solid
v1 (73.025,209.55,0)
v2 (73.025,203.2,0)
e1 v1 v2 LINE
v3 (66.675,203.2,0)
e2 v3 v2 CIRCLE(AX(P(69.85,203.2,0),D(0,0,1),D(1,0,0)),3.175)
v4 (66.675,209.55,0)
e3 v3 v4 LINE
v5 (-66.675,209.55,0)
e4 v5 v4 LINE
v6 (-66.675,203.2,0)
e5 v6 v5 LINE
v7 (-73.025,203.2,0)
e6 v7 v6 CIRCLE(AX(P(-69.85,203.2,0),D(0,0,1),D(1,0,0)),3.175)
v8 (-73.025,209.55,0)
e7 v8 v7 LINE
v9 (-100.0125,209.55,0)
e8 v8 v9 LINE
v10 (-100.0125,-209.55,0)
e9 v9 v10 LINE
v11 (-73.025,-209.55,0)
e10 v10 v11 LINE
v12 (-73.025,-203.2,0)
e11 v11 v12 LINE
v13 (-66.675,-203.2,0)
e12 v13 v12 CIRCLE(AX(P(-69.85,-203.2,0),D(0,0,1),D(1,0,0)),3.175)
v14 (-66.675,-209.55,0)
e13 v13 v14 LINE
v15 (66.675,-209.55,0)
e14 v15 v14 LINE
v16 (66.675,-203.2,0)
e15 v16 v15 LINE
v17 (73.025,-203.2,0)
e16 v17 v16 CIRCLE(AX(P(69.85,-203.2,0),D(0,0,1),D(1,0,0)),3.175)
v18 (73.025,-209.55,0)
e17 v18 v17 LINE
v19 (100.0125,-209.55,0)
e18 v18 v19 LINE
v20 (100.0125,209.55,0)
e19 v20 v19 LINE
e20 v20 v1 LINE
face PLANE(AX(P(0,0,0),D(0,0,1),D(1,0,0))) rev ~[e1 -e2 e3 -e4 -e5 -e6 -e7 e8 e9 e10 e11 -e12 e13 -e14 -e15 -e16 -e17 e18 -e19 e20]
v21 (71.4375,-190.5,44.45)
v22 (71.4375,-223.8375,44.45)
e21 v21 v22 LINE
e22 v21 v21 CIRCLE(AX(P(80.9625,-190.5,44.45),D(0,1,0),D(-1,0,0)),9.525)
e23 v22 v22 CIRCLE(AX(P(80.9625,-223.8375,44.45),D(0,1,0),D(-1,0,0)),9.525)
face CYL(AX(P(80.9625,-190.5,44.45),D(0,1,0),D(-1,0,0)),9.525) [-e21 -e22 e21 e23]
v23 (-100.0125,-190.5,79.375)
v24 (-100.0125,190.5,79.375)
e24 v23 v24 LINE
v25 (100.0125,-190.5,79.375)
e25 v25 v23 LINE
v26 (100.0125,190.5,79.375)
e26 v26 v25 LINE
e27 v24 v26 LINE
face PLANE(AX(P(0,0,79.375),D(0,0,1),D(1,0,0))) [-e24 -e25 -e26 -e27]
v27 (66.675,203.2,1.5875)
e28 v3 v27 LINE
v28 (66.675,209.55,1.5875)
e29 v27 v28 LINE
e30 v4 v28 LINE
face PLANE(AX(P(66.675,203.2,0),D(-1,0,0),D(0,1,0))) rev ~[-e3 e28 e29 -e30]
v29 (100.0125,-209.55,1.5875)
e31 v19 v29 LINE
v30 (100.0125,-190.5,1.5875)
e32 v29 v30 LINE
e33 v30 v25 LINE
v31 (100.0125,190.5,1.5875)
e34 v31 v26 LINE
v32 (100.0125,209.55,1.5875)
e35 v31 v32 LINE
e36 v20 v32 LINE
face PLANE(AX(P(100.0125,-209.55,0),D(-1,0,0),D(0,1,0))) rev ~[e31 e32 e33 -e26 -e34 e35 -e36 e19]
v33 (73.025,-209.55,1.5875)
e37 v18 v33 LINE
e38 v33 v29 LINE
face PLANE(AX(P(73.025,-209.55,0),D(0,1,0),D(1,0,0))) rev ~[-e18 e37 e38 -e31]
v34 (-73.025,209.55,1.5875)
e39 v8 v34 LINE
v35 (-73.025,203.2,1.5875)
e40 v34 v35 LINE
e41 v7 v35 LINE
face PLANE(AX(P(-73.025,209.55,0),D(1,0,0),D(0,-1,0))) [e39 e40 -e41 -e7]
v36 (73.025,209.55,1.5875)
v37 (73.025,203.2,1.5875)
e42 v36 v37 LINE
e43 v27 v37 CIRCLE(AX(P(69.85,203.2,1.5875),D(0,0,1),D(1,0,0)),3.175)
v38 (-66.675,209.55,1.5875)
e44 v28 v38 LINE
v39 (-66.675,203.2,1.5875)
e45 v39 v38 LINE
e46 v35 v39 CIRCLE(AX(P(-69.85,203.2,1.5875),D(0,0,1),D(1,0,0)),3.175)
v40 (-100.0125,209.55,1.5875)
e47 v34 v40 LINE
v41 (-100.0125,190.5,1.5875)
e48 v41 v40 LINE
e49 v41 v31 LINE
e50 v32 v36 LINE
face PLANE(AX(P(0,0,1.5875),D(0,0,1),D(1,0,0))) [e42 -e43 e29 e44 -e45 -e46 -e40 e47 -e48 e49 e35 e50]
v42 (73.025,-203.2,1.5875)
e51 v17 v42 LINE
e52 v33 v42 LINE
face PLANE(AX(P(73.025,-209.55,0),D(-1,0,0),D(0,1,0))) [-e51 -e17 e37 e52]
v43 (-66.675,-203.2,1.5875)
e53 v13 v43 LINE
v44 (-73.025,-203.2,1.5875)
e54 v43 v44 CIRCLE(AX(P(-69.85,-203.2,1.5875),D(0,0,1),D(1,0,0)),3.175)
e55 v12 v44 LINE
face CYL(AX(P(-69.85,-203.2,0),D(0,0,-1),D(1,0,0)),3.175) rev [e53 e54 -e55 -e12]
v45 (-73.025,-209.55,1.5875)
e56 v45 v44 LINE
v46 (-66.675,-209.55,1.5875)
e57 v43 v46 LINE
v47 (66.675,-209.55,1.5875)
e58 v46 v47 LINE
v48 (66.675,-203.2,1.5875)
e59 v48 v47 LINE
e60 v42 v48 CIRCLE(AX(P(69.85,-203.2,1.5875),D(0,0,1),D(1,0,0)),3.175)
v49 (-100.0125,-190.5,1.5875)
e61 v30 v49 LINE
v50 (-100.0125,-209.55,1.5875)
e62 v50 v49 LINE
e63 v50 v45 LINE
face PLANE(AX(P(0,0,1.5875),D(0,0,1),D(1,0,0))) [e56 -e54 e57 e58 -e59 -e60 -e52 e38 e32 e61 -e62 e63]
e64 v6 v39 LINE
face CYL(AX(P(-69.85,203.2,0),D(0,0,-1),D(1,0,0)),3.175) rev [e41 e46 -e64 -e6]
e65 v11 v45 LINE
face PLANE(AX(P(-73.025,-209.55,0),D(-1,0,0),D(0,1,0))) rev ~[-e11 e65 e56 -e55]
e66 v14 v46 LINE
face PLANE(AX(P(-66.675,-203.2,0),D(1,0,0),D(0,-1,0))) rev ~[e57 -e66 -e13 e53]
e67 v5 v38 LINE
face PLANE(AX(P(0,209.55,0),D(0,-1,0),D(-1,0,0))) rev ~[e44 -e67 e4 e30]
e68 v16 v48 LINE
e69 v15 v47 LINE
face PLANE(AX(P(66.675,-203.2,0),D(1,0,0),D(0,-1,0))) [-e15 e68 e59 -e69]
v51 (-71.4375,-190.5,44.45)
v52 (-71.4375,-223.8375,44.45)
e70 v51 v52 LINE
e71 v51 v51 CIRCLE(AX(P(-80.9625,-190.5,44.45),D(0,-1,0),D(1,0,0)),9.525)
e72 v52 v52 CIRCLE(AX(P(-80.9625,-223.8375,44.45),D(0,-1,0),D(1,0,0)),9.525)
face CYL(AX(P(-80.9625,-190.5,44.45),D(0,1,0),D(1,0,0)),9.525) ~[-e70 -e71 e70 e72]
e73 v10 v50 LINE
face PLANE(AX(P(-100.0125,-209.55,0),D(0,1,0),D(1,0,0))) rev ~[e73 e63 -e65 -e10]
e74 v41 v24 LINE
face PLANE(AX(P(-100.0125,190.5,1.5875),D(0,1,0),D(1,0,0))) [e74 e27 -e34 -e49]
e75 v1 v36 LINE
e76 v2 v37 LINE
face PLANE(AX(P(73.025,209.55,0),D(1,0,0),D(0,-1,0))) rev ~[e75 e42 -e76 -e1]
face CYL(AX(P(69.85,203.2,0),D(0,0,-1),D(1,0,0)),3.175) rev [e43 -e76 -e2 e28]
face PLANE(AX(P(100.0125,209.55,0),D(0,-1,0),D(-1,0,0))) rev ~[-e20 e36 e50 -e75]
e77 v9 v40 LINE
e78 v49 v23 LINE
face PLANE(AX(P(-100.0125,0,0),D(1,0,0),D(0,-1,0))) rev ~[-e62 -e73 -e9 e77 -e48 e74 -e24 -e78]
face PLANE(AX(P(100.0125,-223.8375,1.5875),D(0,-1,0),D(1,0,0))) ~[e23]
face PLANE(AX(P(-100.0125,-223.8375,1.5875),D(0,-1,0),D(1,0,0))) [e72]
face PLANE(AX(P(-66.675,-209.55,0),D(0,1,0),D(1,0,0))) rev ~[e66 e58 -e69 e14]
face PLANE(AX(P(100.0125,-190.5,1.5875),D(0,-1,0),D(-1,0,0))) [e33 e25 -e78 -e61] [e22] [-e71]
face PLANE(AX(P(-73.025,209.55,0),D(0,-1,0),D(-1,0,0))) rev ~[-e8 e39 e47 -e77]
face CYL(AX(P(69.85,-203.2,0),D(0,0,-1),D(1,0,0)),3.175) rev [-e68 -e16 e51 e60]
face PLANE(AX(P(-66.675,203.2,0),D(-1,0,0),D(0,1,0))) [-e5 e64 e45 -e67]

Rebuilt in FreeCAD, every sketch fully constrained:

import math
import FreeCAD as App
import Part
import Sketcher
Q = App.Units.Quantity

doc = App.newDocument("Part")
body = doc.addObject("PartDesign::Body", "Body")

# Sketch on XY plane
sketch1 = body.newObject("Sketcher::SketchObject", "Sketch")
sketch1.AttachmentSupport = (doc.getObject("XY_Plane"), [""])
sketch1.MapMode = "FlatFace"
sketch1.addGeometry([
    Part.LineSegment(App.Vector(-100, -209.6, 0), App.Vector(-73, -209.6, 0)),  # 0
    Part.LineSegment(App.Vector(-73, -209.6, 0), App.Vector(-73, -203.2, 0)),  # 1
    Part.ArcOfCircle(Part.Circle(App.Vector(-69.8, -203.2, 0), App.Vector(0, 0, 1), 3.2), math.radians(0), math.radians(180)),  # 2
    Part.LineSegment(App.Vector(-66.7, -203.2, 0), App.Vector(-66.7, -209.6, 0)),  # 3
    Part.LineSegment(App.Vector(-66.7, -209.6, 0), App.Vector(66.7, -209.6, 0)),  # 4
    Part.LineSegment(App.Vector(66.7, -209.6, 0), App.Vector(66.7, -203.2, 0)),  # 5
    Part.ArcOfCircle(Part.Circle(App.Vector(69.8, -203.2, 0), App.Vector(0, 0, 1), 3.2), math.radians(0), math.radians(180)),  # 6
    Part.LineSegment(App.Vector(73, -203.2, 0), App.Vector(73, -209.6, 0)),  # 7
    Part.LineSegment(App.Vector(73, -209.6, 0), App.Vector(100, -209.6, 0)),  # 8
    Part.LineSegment(App.Vector(100, -209.6, 0), App.Vector(100, 209.6, 0)),  # 9
    Part.LineSegment(App.Vector(100, 209.6, 0), App.Vector(73, 209.6, 0)),  # 10
    Part.LineSegment(App.Vector(73, 209.6, 0), App.Vector(73, 203.2, 0)),  # 11
    Part.ArcOfCircle(Part.Circle(App.Vector(69.8, 203.2, 0), App.Vector(0, 0, 1), 3.2), math.radians(180), math.radians(360)),  # 12
    Part.LineSegment(App.Vector(66.7, 203.2, 0), App.Vector(66.7, 209.6, 0)),  # 13
    Part.LineSegment(App.Vector(66.7, 209.6, 0), App.Vector(-66.7, 209.6, 0)),  # 14
    Part.LineSegment(App.Vector(-66.7, 209.6, 0), App.Vector(-66.7, 203.2, 0)),  # 15
    Part.ArcOfCircle(Part.Circle(App.Vector(-69.8, 203.2, 0), App.Vector(0, 0, 1), 3.2), math.radians(180), math.radians(360)),  # 16
    Part.LineSegment(App.Vector(-73, 203.2, 0), App.Vector(-73, 209.6, 0)),  # 17
    Part.LineSegment(App.Vector(-73, 209.6, 0), App.Vector(-100, 209.6, 0)),  # 18
    Part.LineSegment(App.Vector(-100, 209.6, 0), App.Vector(-100, -209.6, 0)),  # 19
], False)
sketch1.addConstraint([
    Sketcher.Constraint("Coincident", 0, 2, 1, 1),
    Sketcher.Constraint("Tangent", 1, 2, 2, 2),
    Sketcher.Constraint("Tangent", 2, 1, 3, 1),
    Sketcher.Constraint("Coincident", 3, 2, 4, 1),
    Sketcher.Constraint("Coincident", 4, 2, 5, 1),
    Sketcher.Constraint("Tangent", 5, 2, 6, 2),
    Sketcher.Constraint("Tangent", 6, 1, 7, 1),
    Sketcher.Constraint("Coincident", 7, 2, 8, 1),
    Sketcher.Constraint("Coincident", 8, 2, 9, 1),
    Sketcher.Constraint("Coincident", 9, 2, 10, 1),
    Sketcher.Constraint("Coincident", 10, 2, 11, 1),
    Sketcher.Constraint("Tangent", 11, 2, 12, 2),
    Sketcher.Constraint("Tangent", 12, 1, 13, 1),
    Sketcher.Constraint("Coincident", 13, 2, 14, 1),
    Sketcher.Constraint("Coincident", 14, 2, 15, 1),
    Sketcher.Constraint("Tangent", 15, 2, 16, 2),
    Sketcher.Constraint("Tangent", 16, 1, 17, 1),
    Sketcher.Constraint("Coincident", 17, 2, 18, 1),
    Sketcher.Constraint("Coincident", 18, 2, 19, 1),
    Sketcher.Constraint("Coincident", 19, 2, 0, 1),
    Sketcher.Constraint("Horizontal", 0),
    Sketcher.Constraint("Vertical", 1),
    Sketcher.Constraint("Vertical", 3),
    Sketcher.Constraint("Horizontal", 4),
    Sketcher.Constraint("Vertical", 5),
    Sketcher.Constraint("Vertical", 7),
    Sketcher.Constraint("Horizontal", 8),
    Sketcher.Constraint("Vertical", 9),
    Sketcher.Constraint("Horizontal", 10),
    Sketcher.Constraint("Vertical", 11),
    Sketcher.Constraint("Vertical", 13),
    Sketcher.Constraint("Horizontal", 14),
    Sketcher.Constraint("Vertical", 15),
    Sketcher.Constraint("Vertical", 17),
    Sketcher.Constraint("Horizontal", 18),
    Sketcher.Constraint("Vertical", 19),
    Sketcher.Constraint("Equal", 2, 6),
    Sketcher.Constraint("Equal", 6, 12),
    Sketcher.Constraint("Equal", 12, 16),
    Sketcher.Constraint("Symmetric", 2, 3, 12, 3, -1, 1),
    Sketcher.Constraint("Symmetric", 6, 3, 16, 3, -1, 1),
    Sketcher.Constraint("Symmetric", 8, 2, 18, 2, -1, 1),
    Sketcher.Constraint("Symmetric", 2, 3, 6, 3, -2),
    Sketcher.Constraint("Horizontal", 0, 2, 3, 2),
    Sketcher.Constraint("Horizontal", 4, 2, 7, 2),
    Sketcher.Constraint("Horizontal", 10, 2, 13, 2),
    Sketcher.Constraint("Horizontal", 14, 2, 17, 2),
    Sketcher.Constraint("DistanceY", 9, 1, 9, 2, Q("16.5 in")),
    Sketcher.Constraint("Radius", 2, Q("0.125 in")),
    Sketcher.Constraint("DistanceY", 1, 1, 1, 2, Q("0.25 in")),
    Sketcher.Constraint("DistanceX", 6, 3, 8, 2, Q("1.1875 in")),
    Sketcher.Constraint("DistanceX", 4, 1, 4, 2, Q("5.25 in")),
])
pad1 = body.newObject("PartDesign::Pad", "Pad")
pad1.Profile = sketch1
pad1.Length = Q("0.0625 in")

# Sketch on XY plane
sketch2 = body.newObject("Sketcher::SketchObject", "Sketch001")
sketch2.AttachmentSupport = (doc.getObject("XY_Plane"), [""])
sketch2.MapMode = "FlatFace"
sketch2.AttachmentOffset = App.Placement(App.Vector(0, 0, 0.0625 * 25.4), App.Rotation())
sketch2.addGeometry([
    Part.LineSegment(App.Vector(100, -190, 0), App.Vector(100, 190, 0)),
    Part.LineSegment(App.Vector(100, 190, 0), App.Vector(-100, 190, 0)),
    Part.LineSegment(App.Vector(-100, 190, 0), App.Vector(-100, -190, 0)),
    Part.LineSegment(App.Vector(-100, -190, 0), App.Vector(100, -190, 0)),
], False)
sketch2.addConstraint([
    Sketcher.Constraint("Coincident", 0, 2, 1, 1),
    Sketcher.Constraint("Coincident", 1, 2, 2, 1),
    Sketcher.Constraint("Coincident", 2, 2, 3, 1),
    Sketcher.Constraint("Coincident", 3, 2, 0, 1),
    Sketcher.Constraint("Vertical", 0),
    Sketcher.Constraint("Horizontal", 1),
    Sketcher.Constraint("Vertical", 2),
    Sketcher.Constraint("Horizontal", 3),
    Sketcher.Constraint("Symmetric", 0, 2, 2, 2, -1, 1),
    Sketcher.Constraint("DistanceY", 0, 1, 0, 2, Q("15 in")),
    Sketcher.Constraint("DistanceX", 1, 2, 1, 1, Q("7.875 in")),
])
pad2 = body.newObject("PartDesign::Pad", "Pad001")
pad2.Profile = sketch2
pad2.Length = Q("3.0625 in")

# Sketch on XZ plane
sketch3 = body.newObject("Sketcher::SketchObject", "Sketch002")
sketch3.AttachmentSupport = (doc.getObject("XZ_Plane"), [""])
sketch3.MapMode = "FlatFace"
sketch3.AttachmentOffset = App.Placement(App.Vector(0, 0, 7.5 * 25.4), App.Rotation())
sketch3.addGeometry(Part.Circle(App.Vector(-81, 44, 0), App.Vector(0, 0, 1), 10), False)
sketch3.addConstraint([
    Sketcher.Constraint("Diameter", 0, Q("0.75 in")),
    Sketcher.Constraint("DistanceY", -1, 1, 0, 3, Q("1.75 in")),
    Sketcher.Constraint("DistanceX", 0, 3, -1, 1, Q("3.1875 in")),
])
pad3 = body.newObject("PartDesign::Pad", "Pad002")
pad3.Profile = sketch3
pad3.Length = Q("1.3125 in")
doc.recompute()

mirrored = body.newObject("PartDesign::Mirrored", "Mirrored")
mirrored.Originals = [pad3]
mirrored.MirrorPlane = (doc.getObject("YZ_Plane"), [""])
body.Tip = mirrored

doc.recompute()
